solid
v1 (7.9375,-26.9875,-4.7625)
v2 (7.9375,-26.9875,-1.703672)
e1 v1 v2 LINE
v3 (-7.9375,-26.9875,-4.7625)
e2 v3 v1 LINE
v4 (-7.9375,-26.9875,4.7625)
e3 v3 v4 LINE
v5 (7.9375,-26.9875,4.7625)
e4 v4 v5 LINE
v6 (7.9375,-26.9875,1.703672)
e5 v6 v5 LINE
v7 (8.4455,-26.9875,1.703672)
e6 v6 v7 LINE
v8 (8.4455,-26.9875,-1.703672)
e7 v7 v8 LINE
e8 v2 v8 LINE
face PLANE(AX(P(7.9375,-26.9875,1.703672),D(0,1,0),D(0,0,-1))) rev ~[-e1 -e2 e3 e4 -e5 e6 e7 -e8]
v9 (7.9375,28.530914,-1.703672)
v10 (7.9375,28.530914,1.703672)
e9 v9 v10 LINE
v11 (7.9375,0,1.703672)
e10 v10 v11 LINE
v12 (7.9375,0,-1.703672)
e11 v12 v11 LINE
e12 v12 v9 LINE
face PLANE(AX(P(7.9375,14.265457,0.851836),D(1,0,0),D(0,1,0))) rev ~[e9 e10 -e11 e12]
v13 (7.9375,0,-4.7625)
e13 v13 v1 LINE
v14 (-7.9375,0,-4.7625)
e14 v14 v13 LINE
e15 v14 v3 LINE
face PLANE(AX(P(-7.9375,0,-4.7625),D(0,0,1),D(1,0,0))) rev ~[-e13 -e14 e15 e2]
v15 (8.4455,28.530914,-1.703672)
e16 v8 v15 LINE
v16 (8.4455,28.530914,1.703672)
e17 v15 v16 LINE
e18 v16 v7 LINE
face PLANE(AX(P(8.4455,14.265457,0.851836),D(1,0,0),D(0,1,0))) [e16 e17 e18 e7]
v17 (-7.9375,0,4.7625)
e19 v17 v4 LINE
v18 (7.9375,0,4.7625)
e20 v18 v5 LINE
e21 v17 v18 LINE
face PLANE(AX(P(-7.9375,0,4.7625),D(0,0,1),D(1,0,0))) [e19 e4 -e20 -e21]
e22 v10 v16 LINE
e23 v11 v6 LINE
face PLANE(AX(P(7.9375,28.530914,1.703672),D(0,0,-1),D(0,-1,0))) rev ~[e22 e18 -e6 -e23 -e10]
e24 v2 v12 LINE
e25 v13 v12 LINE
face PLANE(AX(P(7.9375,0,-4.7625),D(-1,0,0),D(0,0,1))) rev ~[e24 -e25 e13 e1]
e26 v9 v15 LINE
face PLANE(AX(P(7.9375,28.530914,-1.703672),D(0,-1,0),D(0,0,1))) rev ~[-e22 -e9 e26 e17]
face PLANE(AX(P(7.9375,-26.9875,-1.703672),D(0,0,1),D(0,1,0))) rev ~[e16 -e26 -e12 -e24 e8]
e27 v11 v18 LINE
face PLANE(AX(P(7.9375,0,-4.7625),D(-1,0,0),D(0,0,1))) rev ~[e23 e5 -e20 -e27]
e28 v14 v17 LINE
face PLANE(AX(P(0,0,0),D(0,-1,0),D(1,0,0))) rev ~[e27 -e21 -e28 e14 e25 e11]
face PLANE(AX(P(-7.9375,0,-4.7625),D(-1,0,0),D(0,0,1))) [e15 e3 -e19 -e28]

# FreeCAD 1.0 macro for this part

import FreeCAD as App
import Part
import Sketcher
Q = App.Units.Quantity

doc = App.newDocument("Part")
body = doc.addObject("PartDesign::Body", "Body")

# Sketch on XZ plane
sketch1 = body.newObject("Sketcher::SketchObject", "Sketch")
sketch1.AttachmentSupport = (doc.getObject("XZ_Plane"), [""])
sketch1.MapMode = "FlatFace"
sketch1.addGeometry(Part.LineSegment(App.Vector(-8, 5, 0), App.Vector(-8, -5, 0)), False)
sketch1.addGeometry(Part.LineSegment(App.Vector(-8, -5, 0), App.Vector(8, -5, 0)), False)
sketch1.addGeometry(Part.LineSegment(App.Vector(8, -5, 0), App.Vector(8, 5, 0)), False)
sketch1.addGeometry(Part.LineSegment(App.Vector(8, 5, 0), App.Vector(-8, 5, 0)), False)
sketch1.addConstraint(Sketcher.Constraint("Coincident", 0, 2, 1, 1))
sketch1.addConstraint(Sketcher.Constraint("Coincident", 1, 2, 2, 1))
sketch1.addConstraint(Sketcher.Constraint("Coincident", 2, 2, 3, 1))
sketch1.addConstraint(Sketcher.Constraint("Coincident", 3, 2, 0, 1))
sketch1.addConstraint(Sketcher.Constraint("Vertical", 0))
sketch1.addConstraint(Sketcher.Constraint("Horizontal", 1))
sketch1.addConstraint(Sketcher.Constraint("Vertical", 2))
sketch1.addConstraint(Sketcher.Constraint("Horizontal", 3))
sketch1.addConstraint(Sketcher.Constraint("Symmetric", 0, 2, 2, 2, -1, 1))
sketch1.addConstraint(Sketcher.Constraint("DistanceX", 1, 1, 1, 2, Q("0.625 in")))
sketch1.addConstraint(Sketcher.Constraint("DistanceY", 0, 2, 0, 1, Q("0.375 in")))
pad1 = body.newObject("PartDesign::Pad", "Pad")
pad1.Profile = sketch1
pad1.Length = Q("1.0625 in")

# Sketch on YZ plane
sketch2 = body.newObject("Sketcher::SketchObject", "Sketch001")
sketch2.AttachmentSupport = (doc.getObject("YZ_Plane"), [""])
sketch2.MapMode = "FlatFace"
sketch2.AttachmentOffset = App.Placement(App.Vector(0, 0, 0.3125 * 25.4), App.Rotation())
sketch2.addGeometry(Part.LineSegment(App.Vector(28.5, 1.7, 0), App.Vector(-27, 1.7, 0)), False)
sketch2.addGeometry(Part.LineSegment(App.Vector(-27, 1.7, 0), App.Vector(-27, -1.7, 0)), False)
sketch2.addGeometry(Part.LineSegment(App.Vector(-27, -1.7, 0), App.Vector(28.5, -1.7, 0)), False)
sketch2.addGeometry(Part.LineSegment(App.Vector(28.5, -1.7, 0), App.Vector(28.5, 1.7, 0)), False)
sketch2.addConstraint(Sketcher.Constraint("Coincident", 0, 2, 1, 1))
sketch2.addConstraint(Sketcher.Constraint("Coincident", 1, 2, 2, 1))
sketch2.addConstraint(Sketcher.Constraint("Coincident", 2, 2, 3, 1))
sketch2.addConstraint(Sketcher.Constraint("Coincident", 3, 2, 0, 1))
sketch2.addConstraint(Sketcher.Constraint("Horizontal", 0))
sketch2.addConstraint(Sketcher.Constraint("Vertical", 1))
sketch2.addConstraint(Sketcher.Constraint("Horizontal", 2))
sketch2.addConstraint(Sketcher.Constraint("Vertical", 3))
sketch2.addConstraint(Sketcher.Constraint("DistanceX", 0, 2, -1, 1, Q("1.0625 in")))
sketch2.addConstraint(Sketcher.Constraint("DistanceX", 0, 2, 0, 1, 55.518414))
sketch2.addConstraint(Sketcher.Constraint("DistanceY", 1, 2, 1, 1, 3.407344))
sketch2.addConstraint(Sketcher.Constraint("DistanceY", -1, 1, 0, 2, 1.703672))
pad2 = body.newObject("PartDesign::Pad", "Pad001")
pad2.Profile = sketch2
pad2.Length = Q("0.02 in")

doc.recompute()
